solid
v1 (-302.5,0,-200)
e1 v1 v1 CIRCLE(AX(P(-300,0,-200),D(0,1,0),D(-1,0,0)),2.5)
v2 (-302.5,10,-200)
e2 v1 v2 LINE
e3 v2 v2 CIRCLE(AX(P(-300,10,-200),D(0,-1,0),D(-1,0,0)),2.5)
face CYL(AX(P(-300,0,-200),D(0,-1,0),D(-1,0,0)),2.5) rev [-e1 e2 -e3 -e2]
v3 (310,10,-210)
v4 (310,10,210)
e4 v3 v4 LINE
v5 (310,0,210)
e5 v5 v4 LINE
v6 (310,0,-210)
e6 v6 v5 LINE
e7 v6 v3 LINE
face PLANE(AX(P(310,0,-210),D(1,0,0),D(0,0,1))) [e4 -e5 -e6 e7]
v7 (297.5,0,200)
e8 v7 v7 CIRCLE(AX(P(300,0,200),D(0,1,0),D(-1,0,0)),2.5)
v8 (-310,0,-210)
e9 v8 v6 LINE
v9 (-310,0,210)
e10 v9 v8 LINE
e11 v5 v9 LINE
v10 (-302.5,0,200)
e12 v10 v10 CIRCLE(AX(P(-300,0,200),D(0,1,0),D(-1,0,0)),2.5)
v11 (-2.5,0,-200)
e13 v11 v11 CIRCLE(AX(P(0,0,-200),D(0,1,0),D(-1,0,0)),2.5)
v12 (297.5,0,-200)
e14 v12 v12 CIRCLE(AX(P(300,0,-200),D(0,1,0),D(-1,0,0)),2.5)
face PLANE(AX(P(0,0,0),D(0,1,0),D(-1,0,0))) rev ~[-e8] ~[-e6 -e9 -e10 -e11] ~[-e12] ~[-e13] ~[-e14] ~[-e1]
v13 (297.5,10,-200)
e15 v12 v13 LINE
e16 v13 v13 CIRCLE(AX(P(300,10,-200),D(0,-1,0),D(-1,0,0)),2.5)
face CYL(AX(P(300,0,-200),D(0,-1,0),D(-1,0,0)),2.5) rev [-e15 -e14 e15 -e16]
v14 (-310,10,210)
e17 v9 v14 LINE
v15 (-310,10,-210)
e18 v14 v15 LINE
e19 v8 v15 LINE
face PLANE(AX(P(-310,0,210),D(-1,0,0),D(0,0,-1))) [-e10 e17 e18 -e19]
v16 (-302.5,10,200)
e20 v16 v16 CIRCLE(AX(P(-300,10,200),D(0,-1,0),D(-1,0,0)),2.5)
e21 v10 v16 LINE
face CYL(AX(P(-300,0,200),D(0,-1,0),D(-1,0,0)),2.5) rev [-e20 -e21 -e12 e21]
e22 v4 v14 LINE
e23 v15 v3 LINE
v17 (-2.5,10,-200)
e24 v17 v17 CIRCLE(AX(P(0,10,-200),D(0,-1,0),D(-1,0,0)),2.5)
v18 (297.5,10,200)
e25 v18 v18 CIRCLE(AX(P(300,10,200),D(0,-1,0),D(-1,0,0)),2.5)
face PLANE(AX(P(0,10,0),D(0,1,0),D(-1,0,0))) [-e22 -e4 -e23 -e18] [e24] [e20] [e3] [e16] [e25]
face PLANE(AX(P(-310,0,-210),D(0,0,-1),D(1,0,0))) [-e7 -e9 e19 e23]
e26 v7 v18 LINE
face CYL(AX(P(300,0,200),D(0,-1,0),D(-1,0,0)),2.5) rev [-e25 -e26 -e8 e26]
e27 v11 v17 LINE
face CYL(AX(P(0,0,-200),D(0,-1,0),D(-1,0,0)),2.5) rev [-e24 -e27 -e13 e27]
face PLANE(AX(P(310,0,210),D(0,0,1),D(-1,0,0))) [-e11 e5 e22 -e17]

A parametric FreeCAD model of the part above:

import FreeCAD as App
import Part
import Sketcher
from FreeCAD import Vector
Q = App.Units.Quantity

doc = App.newDocument("Part")
body = doc.addObject("PartDesign::Body", "Body")

sketch1 = body.newObject("Sketcher::SketchObject", "Sketch")
sketch1.AttachmentSupport = (doc.getObject("XZ_Plane"), [""])
sketch1.MapMode = "FlatFace"
sketch1.addGeometry([
    Part.LineSegment(Vector(-310, 210, 0), Vector(310, 210, 0)),
    Part.LineSegment(Vector(310, 210, 0), Vector(310, -210, 0)),
    Part.LineSegment(Vector(310, -210, 0), Vector(-310, -210, 0)),
    Part.LineSegment(Vector(-310, -210, 0), Vector(-310, 210, 0)),
    Part.Circle(Vector(0, -200, 0), Vector(0, 0, 1), 2.5),
    Part.Circle(Vector(-300, -200, 0), Vector(0, 0, 1), 2.5),
    Part.Circle(Vector(-300, 200, 0), Vector(0, 0, 1), 2.5),
    Part.Circle(Vector(300, 200, 0), Vector(0, 0, 1), 2.5),
    Part.Circle(Vector(300, -200, 0), Vector(0, 0, 1), 2.5),
], False)
sketch1.addConstraint([
    Sketcher.Constraint("Coincident", 0, 2, 1, 1),
    Sketcher.Constraint("Coincident", 1, 2, 2, 1),
    Sketcher.Constraint("Coincident", 2, 2, 3, 1),
    Sketcher.Constraint("Coincident", 3, 2, 0, 1),
    Sketcher.Constraint("Horizontal", 0),
    Sketcher.Constraint("Vertical", 1),
    Sketcher.Constraint("Horizontal", 2),
    Sketcher.Constraint("Vertical", 3),
    Sketcher.Constraint("Equal", 4, 5),
    Sketcher.Constraint("Equal", 5, 6),
    Sketcher.Constraint("Equal", 6, 7),
    Sketcher.Constraint("Equal", 7, 8),
    Sketcher.Constraint("Symmetric", 5, 3, 7, 3, -1, 1),
    Sketcher.Constraint("Symmetric", 6, 3, 8, 3, -1, 1),
    Sketcher.Constraint("Symmetric", 0, 2, 2, 2, -1, 1),
    Sketcher.Constraint("Symmetric", 6, 3, 7, 3, -2),
    Sketcher.Constraint("PointOnObject", 4, 3, -2),
    Sketcher.Constraint("Horizontal", 4, 3, 5, 3),
    Sketcher.Constraint("Diameter", 4, Q("5 mm")),
    Sketcher.Constraint("DistanceX", 0, 1, 0, 2, Q("620 mm")),
    Sketcher.Constraint("DistanceY", 1, 2, 1, 1, Q("420 mm")),
    Sketcher.Constraint("DistanceX", 7, 3, 0, 2, Q("10 mm")),
    Sketcher.Constraint("DistanceY", 7, 3, 0, 2, Q("10 mm")),
])
pad1 = body.newObject("PartDesign::Pad", "Pad")
pad1.Profile = sketch1
pad1.Length = 10
pad1.Reversed = True

doc.recompute()
